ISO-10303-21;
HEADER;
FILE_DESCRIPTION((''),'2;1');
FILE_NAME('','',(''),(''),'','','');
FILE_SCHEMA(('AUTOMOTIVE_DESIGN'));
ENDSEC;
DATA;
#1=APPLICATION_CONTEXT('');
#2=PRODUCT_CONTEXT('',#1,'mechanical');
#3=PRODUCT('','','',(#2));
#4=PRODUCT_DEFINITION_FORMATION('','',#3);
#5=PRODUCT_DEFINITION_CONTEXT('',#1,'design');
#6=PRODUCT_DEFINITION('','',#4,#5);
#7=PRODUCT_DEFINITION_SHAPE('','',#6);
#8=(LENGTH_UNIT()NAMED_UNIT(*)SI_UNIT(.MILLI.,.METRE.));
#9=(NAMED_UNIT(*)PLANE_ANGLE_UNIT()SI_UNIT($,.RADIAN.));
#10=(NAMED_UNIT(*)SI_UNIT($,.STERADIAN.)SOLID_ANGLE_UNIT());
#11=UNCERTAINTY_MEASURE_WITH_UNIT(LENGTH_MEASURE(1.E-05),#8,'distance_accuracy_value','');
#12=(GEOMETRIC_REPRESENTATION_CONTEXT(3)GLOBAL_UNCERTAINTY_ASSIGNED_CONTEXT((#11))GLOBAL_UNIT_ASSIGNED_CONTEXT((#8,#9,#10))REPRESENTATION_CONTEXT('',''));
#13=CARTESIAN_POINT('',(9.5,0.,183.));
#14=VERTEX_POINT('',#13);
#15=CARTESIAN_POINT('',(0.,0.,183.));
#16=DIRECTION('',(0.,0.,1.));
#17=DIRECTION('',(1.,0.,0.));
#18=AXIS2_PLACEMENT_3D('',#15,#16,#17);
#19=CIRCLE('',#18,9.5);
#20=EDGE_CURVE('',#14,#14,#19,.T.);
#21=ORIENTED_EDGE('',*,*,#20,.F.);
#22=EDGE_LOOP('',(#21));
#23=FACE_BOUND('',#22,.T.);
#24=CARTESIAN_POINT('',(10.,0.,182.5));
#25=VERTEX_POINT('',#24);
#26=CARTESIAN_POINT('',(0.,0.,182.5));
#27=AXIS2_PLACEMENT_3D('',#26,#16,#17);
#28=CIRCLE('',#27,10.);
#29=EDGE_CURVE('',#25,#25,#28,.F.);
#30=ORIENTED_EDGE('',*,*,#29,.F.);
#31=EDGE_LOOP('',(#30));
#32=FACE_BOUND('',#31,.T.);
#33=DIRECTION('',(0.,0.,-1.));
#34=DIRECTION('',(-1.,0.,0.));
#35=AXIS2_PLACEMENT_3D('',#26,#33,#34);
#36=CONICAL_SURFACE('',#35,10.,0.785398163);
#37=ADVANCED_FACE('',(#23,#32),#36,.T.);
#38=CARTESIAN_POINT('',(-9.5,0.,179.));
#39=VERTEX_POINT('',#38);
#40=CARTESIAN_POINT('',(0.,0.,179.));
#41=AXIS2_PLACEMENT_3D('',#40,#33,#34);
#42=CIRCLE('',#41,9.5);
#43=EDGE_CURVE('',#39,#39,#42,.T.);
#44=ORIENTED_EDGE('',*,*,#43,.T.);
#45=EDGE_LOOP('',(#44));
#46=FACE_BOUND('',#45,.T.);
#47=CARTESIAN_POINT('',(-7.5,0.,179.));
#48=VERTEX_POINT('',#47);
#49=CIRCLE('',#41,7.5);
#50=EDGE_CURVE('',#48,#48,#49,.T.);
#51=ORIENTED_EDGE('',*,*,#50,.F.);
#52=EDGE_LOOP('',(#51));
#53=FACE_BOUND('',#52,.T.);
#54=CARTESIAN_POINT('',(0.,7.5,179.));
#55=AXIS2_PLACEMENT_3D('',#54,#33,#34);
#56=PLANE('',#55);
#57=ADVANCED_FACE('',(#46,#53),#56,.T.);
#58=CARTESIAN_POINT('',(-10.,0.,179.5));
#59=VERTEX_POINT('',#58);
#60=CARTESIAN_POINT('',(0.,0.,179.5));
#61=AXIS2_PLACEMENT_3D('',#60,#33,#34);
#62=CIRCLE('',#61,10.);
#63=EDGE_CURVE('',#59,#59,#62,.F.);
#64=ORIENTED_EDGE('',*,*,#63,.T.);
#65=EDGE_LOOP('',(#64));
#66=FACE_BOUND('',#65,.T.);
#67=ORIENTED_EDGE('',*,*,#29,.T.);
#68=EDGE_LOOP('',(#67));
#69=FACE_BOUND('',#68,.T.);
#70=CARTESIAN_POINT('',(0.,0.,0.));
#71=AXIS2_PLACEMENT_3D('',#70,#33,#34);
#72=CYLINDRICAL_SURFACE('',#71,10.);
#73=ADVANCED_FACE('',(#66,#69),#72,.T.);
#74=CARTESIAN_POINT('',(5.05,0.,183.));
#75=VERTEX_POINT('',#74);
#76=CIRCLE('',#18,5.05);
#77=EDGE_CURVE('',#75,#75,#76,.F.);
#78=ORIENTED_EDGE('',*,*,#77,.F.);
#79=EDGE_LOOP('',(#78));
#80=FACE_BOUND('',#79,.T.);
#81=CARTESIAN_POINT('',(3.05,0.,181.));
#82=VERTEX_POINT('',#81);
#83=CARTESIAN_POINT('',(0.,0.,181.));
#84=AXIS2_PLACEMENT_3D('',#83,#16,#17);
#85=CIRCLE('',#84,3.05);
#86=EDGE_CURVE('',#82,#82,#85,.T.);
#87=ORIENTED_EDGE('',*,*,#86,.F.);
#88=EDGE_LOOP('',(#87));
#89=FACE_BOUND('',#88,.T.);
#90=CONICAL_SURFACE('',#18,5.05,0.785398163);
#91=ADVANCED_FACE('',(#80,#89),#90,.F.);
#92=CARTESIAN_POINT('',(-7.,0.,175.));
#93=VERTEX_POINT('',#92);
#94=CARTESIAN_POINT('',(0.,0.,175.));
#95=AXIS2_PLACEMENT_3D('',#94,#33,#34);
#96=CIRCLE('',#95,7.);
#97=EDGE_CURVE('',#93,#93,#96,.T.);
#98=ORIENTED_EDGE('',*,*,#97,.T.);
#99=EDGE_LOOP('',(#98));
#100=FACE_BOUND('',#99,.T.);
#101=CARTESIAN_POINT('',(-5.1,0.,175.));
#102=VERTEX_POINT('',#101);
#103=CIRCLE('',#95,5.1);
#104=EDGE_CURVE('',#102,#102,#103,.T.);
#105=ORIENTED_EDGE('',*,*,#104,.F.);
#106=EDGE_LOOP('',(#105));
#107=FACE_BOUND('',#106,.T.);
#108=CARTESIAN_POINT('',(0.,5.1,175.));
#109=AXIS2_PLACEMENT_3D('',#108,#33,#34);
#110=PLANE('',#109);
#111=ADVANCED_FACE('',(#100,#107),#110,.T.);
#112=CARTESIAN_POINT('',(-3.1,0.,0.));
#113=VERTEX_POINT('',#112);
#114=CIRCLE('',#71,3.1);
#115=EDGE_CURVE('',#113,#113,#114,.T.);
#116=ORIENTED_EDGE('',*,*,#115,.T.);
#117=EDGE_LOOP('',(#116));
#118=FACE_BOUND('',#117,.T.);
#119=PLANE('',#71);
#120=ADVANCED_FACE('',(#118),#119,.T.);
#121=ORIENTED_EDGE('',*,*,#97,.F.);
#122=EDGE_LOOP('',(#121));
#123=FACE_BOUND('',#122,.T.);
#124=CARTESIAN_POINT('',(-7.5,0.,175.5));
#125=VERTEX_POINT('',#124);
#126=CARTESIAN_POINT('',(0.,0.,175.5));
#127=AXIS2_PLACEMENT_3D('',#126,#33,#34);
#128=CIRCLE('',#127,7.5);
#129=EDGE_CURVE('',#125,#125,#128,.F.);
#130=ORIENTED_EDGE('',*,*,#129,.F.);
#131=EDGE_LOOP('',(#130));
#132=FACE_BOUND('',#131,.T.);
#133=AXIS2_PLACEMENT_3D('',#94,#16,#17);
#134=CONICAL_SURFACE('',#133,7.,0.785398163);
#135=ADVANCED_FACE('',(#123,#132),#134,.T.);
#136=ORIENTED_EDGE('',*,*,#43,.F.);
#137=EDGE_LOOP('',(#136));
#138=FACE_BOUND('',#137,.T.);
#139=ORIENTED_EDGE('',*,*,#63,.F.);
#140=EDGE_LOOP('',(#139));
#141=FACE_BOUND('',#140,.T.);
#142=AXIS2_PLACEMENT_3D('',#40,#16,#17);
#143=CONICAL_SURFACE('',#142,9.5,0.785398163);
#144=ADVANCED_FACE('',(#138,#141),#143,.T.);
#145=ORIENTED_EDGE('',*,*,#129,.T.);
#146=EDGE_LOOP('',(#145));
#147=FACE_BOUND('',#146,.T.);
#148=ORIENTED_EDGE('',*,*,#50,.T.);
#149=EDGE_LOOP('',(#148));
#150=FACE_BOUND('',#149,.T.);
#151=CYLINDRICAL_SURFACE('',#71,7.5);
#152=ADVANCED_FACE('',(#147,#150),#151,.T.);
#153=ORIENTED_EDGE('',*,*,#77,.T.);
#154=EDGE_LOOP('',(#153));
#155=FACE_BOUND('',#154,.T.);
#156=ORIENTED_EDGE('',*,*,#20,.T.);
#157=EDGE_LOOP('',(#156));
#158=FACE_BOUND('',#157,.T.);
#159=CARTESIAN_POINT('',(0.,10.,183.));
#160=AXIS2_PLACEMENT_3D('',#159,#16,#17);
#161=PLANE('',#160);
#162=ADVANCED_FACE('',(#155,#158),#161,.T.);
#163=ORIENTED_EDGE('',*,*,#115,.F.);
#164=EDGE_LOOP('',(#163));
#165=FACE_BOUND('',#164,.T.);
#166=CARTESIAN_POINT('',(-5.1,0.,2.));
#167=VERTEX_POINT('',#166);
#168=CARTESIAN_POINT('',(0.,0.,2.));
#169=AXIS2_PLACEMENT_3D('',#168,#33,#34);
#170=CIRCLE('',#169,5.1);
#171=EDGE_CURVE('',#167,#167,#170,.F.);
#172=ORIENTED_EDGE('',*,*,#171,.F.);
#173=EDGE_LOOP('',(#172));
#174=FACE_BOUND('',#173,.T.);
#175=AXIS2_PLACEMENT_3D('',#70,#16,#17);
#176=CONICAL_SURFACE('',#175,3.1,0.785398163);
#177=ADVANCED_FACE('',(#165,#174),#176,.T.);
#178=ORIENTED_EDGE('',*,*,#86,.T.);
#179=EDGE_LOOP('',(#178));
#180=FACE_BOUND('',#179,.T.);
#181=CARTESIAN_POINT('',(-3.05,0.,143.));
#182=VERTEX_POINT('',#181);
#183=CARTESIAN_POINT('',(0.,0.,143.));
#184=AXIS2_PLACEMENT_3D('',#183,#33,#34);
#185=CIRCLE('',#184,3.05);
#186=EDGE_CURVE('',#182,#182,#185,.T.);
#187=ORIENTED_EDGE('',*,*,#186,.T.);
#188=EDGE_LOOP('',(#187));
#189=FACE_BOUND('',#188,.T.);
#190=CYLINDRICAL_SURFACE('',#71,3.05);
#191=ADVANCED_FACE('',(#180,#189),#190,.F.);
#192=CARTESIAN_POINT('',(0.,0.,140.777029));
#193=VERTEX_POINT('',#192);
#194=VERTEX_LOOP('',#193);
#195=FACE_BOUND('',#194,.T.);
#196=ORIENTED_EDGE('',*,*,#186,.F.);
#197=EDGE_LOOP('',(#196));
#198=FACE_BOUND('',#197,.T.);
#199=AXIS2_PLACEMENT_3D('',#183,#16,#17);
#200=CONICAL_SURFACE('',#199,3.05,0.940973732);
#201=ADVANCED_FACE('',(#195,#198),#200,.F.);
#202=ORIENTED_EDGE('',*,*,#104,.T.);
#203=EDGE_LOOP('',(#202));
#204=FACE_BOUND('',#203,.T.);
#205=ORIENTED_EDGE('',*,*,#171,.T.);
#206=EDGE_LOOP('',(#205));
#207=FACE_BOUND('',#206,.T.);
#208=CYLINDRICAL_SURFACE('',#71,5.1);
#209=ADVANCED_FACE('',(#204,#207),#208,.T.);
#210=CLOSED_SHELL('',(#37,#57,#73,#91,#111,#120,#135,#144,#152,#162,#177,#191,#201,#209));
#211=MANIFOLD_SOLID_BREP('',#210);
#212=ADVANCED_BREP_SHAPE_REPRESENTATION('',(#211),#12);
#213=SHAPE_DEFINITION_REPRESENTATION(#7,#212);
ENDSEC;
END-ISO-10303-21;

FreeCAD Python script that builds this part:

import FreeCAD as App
import Part
import Sketcher
from FreeCAD import Vector
Q = App.Units.Quantity


def edges_at(feature, points):
    """Names of the edges that pass closest to the given points."""
    edges = feature.Shape.Edges
    near = lambda p: min(range(len(edges)), key=lambda i: edges[i].distToShape(Part.Vertex(*p))[0])
    return sorted({f"Edge{near(p) + 1}" for p in points})


def add_polygon(sketch, points):
    """Adds a closed chain of lines whose ends are joined by coincident constraints."""
    first, n = sketch.GeometryCount, len(points)
    for a, b in zip(points, points[1:] + points[:1]):
        sketch.addGeometry(Part.LineSegment(App.Vector(*a, 0), App.Vector(*b, 0)), False)
    for i in range(n):
        sketch.addConstraint(Sketcher.Constraint("Coincident", first + i, 2, first + (i + 1) % n, 1))

doc = App.newDocument("Part")
params = doc.addObject("Spreadsheet::Sheet", "Params")
for row, (alias, value) in enumerate([
    ("sketch1_height", "175 mm"),
    ("sketch1_height2", "4 mm"),
    ("sketch1_height3", "40 mm"),
    ("sketch1_width", "5.1 mm"),
    ("sketch1_width2", "2.4 mm"),
    ("revolution_angle", "360 deg"),
    ("chamfer_size", "2 mm"),
    ("chamfer2_size", "0.5 mm"),
], start=1):
    params.set(f"A{row}", alias)
    params.set(f"B{row}", "=" + value)
    params.setAlias(f"B{row}", alias)

body = doc.addObject("PartDesign::Body", "Body")

sketch1 = body.newObject("Sketcher::SketchObject", "Sketch")
sketch1.AttachmentSupport = (doc.getObject("YZ_Plane"), [""])
sketch1.MapMode = "FlatFace"
add_polygon(sketch1, [(0, 0), (5.1, 0), (5.1, 175), (7.5, 175), (7.5, 179), (10, 179), (10, 183), (3, 183), (3, 143), (0, 140.8)])
sketch1.addConstraint([
    Sketcher.Constraint("Horizontal", 0),
    Sketcher.Constraint("Vertical", 1),
    Sketcher.Constraint("Horizontal", 2),
    Sketcher.Constraint("Vertical", 3),
    Sketcher.Constraint("Horizontal", 4),
    Sketcher.Constraint("Vertical", 5),
    Sketcher.Constraint("Horizontal", 6),
    Sketcher.Constraint("Vertical", 7),
    Sketcher.Constraint("Vertical", 9),
    Sketcher.Constraint("Coincident", 9, 2, -1, 1),
    Sketcher.Constraint("Equal", 3, 5),
    Sketcher.Constraint("DistanceY", 1, 1, 1, 2, Q("175 mm")),
    Sketcher.Constraint("DistanceY", 3, 1, 3, 2, Q("4 mm")),
    Sketcher.Constraint("DistanceY", 7, 2, 7, 1, Q("40 mm")),
    Sketcher.Constraint("DistanceX", 0, 1, 0, 2, Q("5.1 mm")),
    Sketcher.Constraint("DistanceX", 2, 1, 2, 2, Q("2.4 mm")),
    Sketcher.Constraint("DistanceX", 4, 1, 4, 2, Q("2.5 mm")),
    Sketcher.Constraint("DistanceX", 6, 2, 6, 1, Q("6.95 mm")),
    Sketcher.Constraint("DistanceY", 9, 2, 9, 1, Q("140.777029 mm")),
])
sketch1.setExpression("Constraints[21]", "Params.sketch1_height")
sketch1.setExpression("Constraints[22]", "Params.sketch1_height2")
sketch1.setExpression("Constraints[23]", "Params.sketch1_height3")
sketch1.setExpression("Constraints[24]", "Params.sketch1_width")
sketch1.setExpression("Constraints[25]", "Params.sketch1_width2")
revolution = body.newObject("PartDesign::Revolution", "Revolution")
revolution.Profile = sketch1
revolution.ReferenceAxis = (sketch1, ["V_Axis"])
revolution.setExpression("Angle", "Params.revolution_angle")
doc.recompute()

chamfer = body.newObject("PartDesign::Chamfer", "Chamfer")
chamfer.Base = (revolution, edges_at(revolution, [(5.1, 0, 0), (3.05, 0, 183)]))
chamfer.setExpression("Size", "Params.chamfer_size")
doc.recompute()

chamfer2 = body.newObject("PartDesign::Chamfer", "Chamfer001")
chamfer2.Base = (chamfer, edges_at(chamfer, [(10, 0, 183), (10, 0, 179), (7.5, 0, 175)]))
chamfer2.setExpression("Size", "Params.chamfer2_size")

doc.recompute()
